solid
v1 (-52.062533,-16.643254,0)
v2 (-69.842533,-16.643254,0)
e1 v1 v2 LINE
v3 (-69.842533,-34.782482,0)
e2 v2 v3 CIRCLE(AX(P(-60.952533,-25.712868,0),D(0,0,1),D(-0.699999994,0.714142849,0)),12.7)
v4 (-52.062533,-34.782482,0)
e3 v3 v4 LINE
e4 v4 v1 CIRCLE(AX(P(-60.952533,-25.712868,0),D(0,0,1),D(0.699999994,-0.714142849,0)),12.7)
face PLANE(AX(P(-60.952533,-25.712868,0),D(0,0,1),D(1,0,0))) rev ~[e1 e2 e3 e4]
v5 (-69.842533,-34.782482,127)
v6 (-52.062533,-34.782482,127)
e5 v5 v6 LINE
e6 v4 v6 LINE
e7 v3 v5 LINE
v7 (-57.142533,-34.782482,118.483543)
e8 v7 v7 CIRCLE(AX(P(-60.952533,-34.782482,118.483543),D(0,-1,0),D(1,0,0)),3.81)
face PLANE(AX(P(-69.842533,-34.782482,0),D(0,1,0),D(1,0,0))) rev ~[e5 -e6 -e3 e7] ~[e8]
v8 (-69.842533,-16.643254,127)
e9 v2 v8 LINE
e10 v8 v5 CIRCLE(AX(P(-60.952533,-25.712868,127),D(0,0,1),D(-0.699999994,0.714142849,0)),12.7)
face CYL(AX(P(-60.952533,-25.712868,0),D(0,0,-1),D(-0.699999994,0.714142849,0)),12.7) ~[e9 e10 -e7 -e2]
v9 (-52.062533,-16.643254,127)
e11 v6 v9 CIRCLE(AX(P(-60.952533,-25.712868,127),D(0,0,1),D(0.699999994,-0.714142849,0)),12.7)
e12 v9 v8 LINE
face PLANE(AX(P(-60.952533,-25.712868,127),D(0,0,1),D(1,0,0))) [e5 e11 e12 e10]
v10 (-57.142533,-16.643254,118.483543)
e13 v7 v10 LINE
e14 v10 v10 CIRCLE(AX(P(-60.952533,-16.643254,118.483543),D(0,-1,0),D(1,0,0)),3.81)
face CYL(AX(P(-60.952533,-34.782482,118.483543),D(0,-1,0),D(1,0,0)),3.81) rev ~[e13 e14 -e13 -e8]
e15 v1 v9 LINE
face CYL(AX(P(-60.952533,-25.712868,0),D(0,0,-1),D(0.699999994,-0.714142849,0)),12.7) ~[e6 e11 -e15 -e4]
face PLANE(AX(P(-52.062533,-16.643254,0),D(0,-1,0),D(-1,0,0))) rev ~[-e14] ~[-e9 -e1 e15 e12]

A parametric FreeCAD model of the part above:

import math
import FreeCAD as App
import Part
import Sketcher
Q = App.Units.Quantity

doc = App.newDocument("Part")
params = doc.addObject("Spreadsheet::Sheet", "Params")
for row, (alias, value) in enumerate([
    ("sketch1_radius", "0.5 in"),
    ("sketch1_width", "0.7 in"),
    ("pad1_length", "5 in"),
    ("sketch2_diameter", "0.3 in"),
    ("pocket1_length", "1 in"),
], start=1):
    params.set(f"A{row}", alias)
    params.set(f"B{row}", "=" + value)
    params.setAlias(f"B{row}", alias)

body = doc.addObject("PartDesign::Body", "Body")

# Sketch on XY plane
sketch1 = body.newObject("Sketcher::SketchObject", "Sketch")
sketch1.AttachmentSupport = (doc.getObject("XY_Plane"), [""])
sketch1.MapMode = "FlatFace"
sketch1.addGeometry([
    Part.LineSegment(App.Vector(-70, -35, 0), App.Vector(-52, -35, 0)),
    Part.ArcOfCircle(Part.Circle(App.Vector(-61, -26, 0), App.Vector(0, 0, 1), 13), math.radians(-46), math.radians(46)),
    Part.LineSegment(App.Vector(-52, -17, 0), App.Vector(-70, -17, 0)),
    Part.ArcOfCircle(Part.Circle(App.Vector(-61, -26, 0), App.Vector(0, 0, 1), 13), math.radians(134), math.radians(226)),
], False)
sketch1.addConstraint([
    Sketcher.Constraint("Coincident", 0, 2, 1, 1),
    Sketcher.Constraint("Coincident", 1, 2, 2, 1),
    Sketcher.Constraint("Coincident", 2, 2, 3, 1),
    Sketcher.Constraint("Coincident", 3, 2, 0, 1),
    Sketcher.Constraint("Horizontal", 0),
    Sketcher.Constraint("Horizontal", 2),
    Sketcher.Constraint("Coincident", 3, 3, 1, 3),
    Sketcher.Constraint("Equal", 1, 3),
    Sketcher.Constraint("Vertical", 0, 2, 1, 2),
    Sketcher.Constraint("Radius", 1, Q("0.5 in")),
    Sketcher.Constraint("DistanceX", 0, 1, 0, 2, Q("0.7 in")),
    Sketcher.Constraint("DistanceY", 1, 3, -1, 1, 25.712868),
    Sketcher.Constraint("DistanceX", 1, 3, -1, 1, 60.952533),
])
sketch1.setExpression("Constraints[9]", "Params.sketch1_radius")
sketch1.setExpression("Constraints[10]", "Params.sketch1_width")
pad1 = body.newObject("PartDesign::Pad", "Pad")
pad1.Profile = sketch1
pad1.setExpression("Length", "Params.pad1_length")

# Sketch on XZ plane
sketch2 = body.newObject("Sketcher::SketchObject", "Sketch001")
sketch2.AttachmentSupport = (doc.getObject("XZ_Plane"), [""])
sketch2.MapMode = "FlatFace"
sketch2.AttachmentOffset = App.Placement(App.Vector(0, 0, 34.782482), App.Rotation())
sketch2.addGeometry(Part.Circle(App.Vector(-61, 118.5, 0), App.Vector(0, 0, 1), 3.8), False)
sketch2.addConstraint([
    Sketcher.Constraint("Diameter", 0, Q("0.3 in")),
    Sketcher.Constraint("DistanceX", 0, 3, -1, 1, 60.952533),
    Sketcher.Constraint("DistanceY", -1, 1, 0, 3, 118.483543),
])
sketch2.setExpression("Constraints[0]", "Params.sketch2_diameter")
pocket1 = body.newObject("PartDesign::Pocket", "Pocket")
pocket1.Profile = sketch2
pocket1.setExpression("Length", "Params.pocket1_length")

doc.recompute()
